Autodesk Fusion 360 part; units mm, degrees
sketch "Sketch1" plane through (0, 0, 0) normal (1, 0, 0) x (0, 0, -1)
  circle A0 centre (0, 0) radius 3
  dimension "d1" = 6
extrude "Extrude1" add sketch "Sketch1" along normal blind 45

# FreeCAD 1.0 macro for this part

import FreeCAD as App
import Part
import Sketcher

V = App.Vector
Q = App.Units.Quantity

doc = App.newDocument("Part")
body = doc.addObject("PartDesign::Body", "Body")

# Sketch on YZ plane
sketch1 = body.newObject("Sketcher::SketchObject", "Sketch")
sketch1.AttachmentSupport = (doc.getObject("YZ_Plane"), [""])
sketch1.MapMode = "FlatFace"
sketch1.addGeometry(Part.Circle(V(0, 0, 0), V(0, 0, 1), 3), False)
sketch1.addConstraint(Sketcher.Constraint("Coincident", 0, 3, -1, 1))
sketch1.addConstraint(Sketcher.Constraint("Diameter", 0, Q("6 mm")))
pad1 = body.newObject("PartDesign::Pad", "Pad")
pad1.Profile = sketch1
pad1.Length = 45

doc.recompute()
